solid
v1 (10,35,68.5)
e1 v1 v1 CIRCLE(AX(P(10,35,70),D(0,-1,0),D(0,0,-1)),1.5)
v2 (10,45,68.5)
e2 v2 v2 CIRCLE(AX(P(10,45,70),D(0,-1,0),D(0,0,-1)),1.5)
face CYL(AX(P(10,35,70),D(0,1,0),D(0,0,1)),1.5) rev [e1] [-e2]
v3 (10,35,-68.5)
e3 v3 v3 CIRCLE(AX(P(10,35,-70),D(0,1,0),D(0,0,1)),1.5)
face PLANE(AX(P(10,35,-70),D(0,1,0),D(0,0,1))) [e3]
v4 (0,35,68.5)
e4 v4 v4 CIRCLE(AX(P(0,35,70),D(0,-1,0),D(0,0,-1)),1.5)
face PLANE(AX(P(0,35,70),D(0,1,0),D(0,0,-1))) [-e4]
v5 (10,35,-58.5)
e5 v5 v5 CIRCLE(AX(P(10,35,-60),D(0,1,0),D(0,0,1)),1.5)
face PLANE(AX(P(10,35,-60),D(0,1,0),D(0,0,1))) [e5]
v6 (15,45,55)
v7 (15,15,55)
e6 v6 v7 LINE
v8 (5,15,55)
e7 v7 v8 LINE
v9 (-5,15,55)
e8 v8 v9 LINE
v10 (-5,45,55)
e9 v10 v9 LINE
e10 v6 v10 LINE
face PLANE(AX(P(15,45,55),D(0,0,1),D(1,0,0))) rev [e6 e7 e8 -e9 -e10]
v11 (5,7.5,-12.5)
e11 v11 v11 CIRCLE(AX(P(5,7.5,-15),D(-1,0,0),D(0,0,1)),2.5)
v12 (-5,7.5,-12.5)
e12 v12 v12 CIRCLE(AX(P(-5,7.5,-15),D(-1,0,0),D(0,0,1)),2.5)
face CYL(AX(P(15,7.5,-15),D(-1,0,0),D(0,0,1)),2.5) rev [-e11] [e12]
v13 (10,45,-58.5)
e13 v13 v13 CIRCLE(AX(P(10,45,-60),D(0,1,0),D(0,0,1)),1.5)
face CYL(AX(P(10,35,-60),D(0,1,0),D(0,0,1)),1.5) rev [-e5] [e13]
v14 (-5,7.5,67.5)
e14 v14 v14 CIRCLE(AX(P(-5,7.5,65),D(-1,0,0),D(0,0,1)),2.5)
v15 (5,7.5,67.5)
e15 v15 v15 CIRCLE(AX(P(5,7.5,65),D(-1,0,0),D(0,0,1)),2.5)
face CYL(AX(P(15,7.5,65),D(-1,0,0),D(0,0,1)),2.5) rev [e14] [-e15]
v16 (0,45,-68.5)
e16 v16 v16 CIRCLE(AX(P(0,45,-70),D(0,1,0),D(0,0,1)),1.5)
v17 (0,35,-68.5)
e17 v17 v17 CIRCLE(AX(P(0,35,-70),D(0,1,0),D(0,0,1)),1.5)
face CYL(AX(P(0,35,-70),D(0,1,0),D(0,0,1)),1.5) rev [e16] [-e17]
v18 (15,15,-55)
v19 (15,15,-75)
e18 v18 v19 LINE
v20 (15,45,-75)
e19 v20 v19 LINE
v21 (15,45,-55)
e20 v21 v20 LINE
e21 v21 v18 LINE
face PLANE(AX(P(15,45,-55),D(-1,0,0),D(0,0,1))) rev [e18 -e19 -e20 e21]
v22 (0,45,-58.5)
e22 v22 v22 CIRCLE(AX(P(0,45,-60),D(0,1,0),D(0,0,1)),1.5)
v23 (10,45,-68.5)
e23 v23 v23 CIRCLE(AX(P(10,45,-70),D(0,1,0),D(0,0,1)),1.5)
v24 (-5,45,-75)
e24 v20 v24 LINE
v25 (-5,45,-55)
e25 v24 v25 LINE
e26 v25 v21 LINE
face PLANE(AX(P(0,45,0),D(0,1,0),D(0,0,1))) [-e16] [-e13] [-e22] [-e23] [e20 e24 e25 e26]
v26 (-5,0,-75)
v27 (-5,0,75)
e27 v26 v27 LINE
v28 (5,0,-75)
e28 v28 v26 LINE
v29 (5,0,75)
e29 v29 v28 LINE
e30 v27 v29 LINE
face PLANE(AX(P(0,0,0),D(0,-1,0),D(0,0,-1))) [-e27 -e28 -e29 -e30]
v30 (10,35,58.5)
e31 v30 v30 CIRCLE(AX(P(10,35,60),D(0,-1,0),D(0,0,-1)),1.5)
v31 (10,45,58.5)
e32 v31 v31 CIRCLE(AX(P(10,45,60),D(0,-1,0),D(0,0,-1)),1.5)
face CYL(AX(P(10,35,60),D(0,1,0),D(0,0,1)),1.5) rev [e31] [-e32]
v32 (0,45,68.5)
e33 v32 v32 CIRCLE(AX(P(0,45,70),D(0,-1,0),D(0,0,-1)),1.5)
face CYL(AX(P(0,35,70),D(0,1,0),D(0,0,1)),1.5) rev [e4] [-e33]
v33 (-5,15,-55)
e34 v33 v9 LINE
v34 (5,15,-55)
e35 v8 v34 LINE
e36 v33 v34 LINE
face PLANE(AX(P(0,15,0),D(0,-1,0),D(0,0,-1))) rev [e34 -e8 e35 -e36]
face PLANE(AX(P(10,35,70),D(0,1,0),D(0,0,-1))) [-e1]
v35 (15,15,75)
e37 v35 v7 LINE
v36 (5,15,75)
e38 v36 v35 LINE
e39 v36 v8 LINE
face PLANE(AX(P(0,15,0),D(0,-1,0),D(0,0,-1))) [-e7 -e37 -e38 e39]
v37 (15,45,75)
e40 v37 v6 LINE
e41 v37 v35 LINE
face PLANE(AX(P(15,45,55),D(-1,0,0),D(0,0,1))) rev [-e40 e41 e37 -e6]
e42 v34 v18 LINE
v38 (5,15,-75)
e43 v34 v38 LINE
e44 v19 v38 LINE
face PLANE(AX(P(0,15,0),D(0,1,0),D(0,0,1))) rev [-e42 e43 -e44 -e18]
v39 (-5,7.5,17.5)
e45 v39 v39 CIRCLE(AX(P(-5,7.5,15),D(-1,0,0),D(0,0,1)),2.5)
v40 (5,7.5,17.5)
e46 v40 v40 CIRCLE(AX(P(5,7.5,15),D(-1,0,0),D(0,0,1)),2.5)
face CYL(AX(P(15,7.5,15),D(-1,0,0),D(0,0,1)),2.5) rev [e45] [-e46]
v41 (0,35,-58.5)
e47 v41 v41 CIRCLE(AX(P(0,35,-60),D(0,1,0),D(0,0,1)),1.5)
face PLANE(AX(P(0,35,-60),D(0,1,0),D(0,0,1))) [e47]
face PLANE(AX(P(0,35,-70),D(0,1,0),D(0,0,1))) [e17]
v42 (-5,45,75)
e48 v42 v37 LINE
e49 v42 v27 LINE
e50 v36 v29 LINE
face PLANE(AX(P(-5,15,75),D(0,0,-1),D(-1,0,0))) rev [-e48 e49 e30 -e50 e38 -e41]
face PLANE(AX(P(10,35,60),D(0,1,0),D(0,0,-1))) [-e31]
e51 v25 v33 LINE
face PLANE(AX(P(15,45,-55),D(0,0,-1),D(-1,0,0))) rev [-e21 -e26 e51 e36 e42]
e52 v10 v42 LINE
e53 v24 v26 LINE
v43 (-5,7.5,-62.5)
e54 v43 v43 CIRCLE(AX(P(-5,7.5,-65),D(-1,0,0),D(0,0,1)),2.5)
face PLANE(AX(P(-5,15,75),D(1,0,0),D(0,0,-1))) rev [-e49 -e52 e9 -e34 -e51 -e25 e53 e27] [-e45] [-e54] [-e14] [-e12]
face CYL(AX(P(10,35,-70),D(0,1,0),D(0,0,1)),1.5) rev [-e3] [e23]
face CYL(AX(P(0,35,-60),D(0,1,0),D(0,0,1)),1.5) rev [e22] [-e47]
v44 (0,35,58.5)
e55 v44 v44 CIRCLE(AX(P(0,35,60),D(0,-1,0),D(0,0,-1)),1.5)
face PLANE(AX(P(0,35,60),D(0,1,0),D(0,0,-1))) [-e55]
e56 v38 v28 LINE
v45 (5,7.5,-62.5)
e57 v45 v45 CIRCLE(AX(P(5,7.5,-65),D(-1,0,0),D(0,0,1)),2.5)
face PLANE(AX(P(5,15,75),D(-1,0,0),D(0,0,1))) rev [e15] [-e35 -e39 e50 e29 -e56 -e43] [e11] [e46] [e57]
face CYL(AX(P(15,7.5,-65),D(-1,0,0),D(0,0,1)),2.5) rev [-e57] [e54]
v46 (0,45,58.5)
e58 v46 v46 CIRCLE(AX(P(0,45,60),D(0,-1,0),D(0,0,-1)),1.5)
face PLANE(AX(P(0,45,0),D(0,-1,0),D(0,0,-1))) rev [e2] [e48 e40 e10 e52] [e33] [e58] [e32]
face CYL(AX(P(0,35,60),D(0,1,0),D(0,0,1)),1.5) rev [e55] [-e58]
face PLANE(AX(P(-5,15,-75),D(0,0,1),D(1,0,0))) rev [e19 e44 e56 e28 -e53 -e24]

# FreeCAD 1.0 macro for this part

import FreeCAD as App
import Part
import Sketcher
Q = App.Units.Quantity

doc = App.newDocument("Part")
body = doc.addObject("PartDesign::Body", "Body")

sketch1 = body.newObject("Sketcher::SketchObject", "Sketch")
sketch1.AttachmentSupport = (doc.getObject("XZ_Plane"), [""])
sketch1.MapMode = "FlatFace"
sketch1.addGeometry([
    Part.LineSegment(App.Vector(-5, -75, 0), App.Vector(-5, 75, 0)),
    Part.LineSegment(App.Vector(-5, 75, 0), App.Vector(5, 75, 0)),
    Part.LineSegment(App.Vector(5, 75, 0), App.Vector(5, -75, 0)),
    Part.LineSegment(App.Vector(5, -75, 0), App.Vector(-5, -75, 0)),
], False)
sketch1.addConstraint([
    Sketcher.Constraint("Coincident", 0, 2, 1, 1),
    Sketcher.Constraint("Coincident", 1, 2, 2, 1),
    Sketcher.Constraint("Coincident", 2, 2, 3, 1),
    Sketcher.Constraint("Coincident", 3, 2, 0, 1),
    Sketcher.Constraint("Vertical", 0),
    Sketcher.Constraint("Horizontal", 1),
    Sketcher.Constraint("Vertical", 2),
    Sketcher.Constraint("Horizontal", 3),
    Sketcher.Constraint("Symmetric", 0, 2, 2, 2, -1, 1),
    Sketcher.Constraint("DistanceX", 1, 1, 1, 2, Q("10 mm")),
    Sketcher.Constraint("DistanceY", 0, 1, 0, 2, Q("150 mm")),
])
pad1 = body.newObject("PartDesign::Pad", "Pad")
pad1.Profile = sketch1
pad1.Length = 15
pad1.Reversed = True

sketch2 = body.newObject("Sketcher::SketchObject", "Sketch001")
sketch2.AttachmentSupport = (doc.getObject("XZ_Plane"), [""])
sketch2.MapMode = "FlatFace"
sketch2.AttachmentOffset = App.Placement(App.Vector(0, 0, -15), App.Rotation())
sketch2.addGeometry([
    Part.LineSegment(App.Vector(-5, -75, 0), App.Vector(-5, -55, 0)),
    Part.LineSegment(App.Vector(-5, -55, 0), App.Vector(15, -55, 0)),
    Part.LineSegment(App.Vector(15, -55, 0), App.Vector(15, -75, 0)),
    Part.LineSegment(App.Vector(15, -75, 0), App.Vector(-5, -75, 0)),
    Part.LineSegment(App.Vector(-5, 55, 0), App.Vector(-5, 75, 0)),
    Part.LineSegment(App.Vector(-5, 75, 0), App.Vector(15, 75, 0)),
    Part.LineSegment(App.Vector(15, 75, 0), App.Vector(15, 55, 0)),
    Part.LineSegment(App.Vector(15, 55, 0), App.Vector(-5, 55, 0)),
], False)
sketch2.addConstraint([
    Sketcher.Constraint("Coincident", 0, 2, 1, 1),
    Sketcher.Constraint("Coincident", 1, 2, 2, 1),
    Sketcher.Constraint("Coincident", 2, 2, 3, 1),
    Sketcher.Constraint("Coincident", 3, 2, 0, 1),
    Sketcher.Constraint("Coincident", 4, 2, 5, 1),
    Sketcher.Constraint("Coincident", 5, 2, 6, 1),
    Sketcher.Constraint("Coincident", 6, 2, 7, 1),
    Sketcher.Constraint("Coincident", 7, 2, 4, 1),
    Sketcher.Constraint("Vertical", 0),
    Sketcher.Constraint("Horizontal", 1),
    Sketcher.Constraint("Vertical", 2),
    Sketcher.Constraint("Horizontal", 3),
    Sketcher.Constraint("Vertical", 4),
    Sketcher.Constraint("Horizontal", 5),
    Sketcher.Constraint("Vertical", 6),
    Sketcher.Constraint("Horizontal", 7),
    Sketcher.Constraint("Symmetric", 3, 2, 4, 2, -1),
    Sketcher.Constraint("Symmetric", 1, 2, 6, 2, -1),
    Sketcher.Constraint("Equal", 7, 0),
    Sketcher.Constraint("DistanceX", 1, 1, 1, 2, Q("20 mm")),
    Sketcher.Constraint("DistanceX", 0, 2, -1, 1, Q("5 mm")),
    Sketcher.Constraint("DistanceY", 0, 2, -1, 1, Q("55 mm")),
])
pad2 = body.newObject("PartDesign::Pad", "Pad001")
pad2.Profile = sketch2
pad2.Length = 30
pad2.Reversed = True

sketch3 = body.newObject("Sketcher::SketchObject", "Sketch002")
sketch3.AttachmentSupport = (doc.getObject("YZ_Plane"), [""])
sketch3.MapMode = "FlatFace"
sketch3.AttachmentOffset = App.Placement(App.Vector(0, 0, -5), App.Rotation())
sketch3.addGeometry([
    Part.Circle(App.Vector(7.5, -65, 0), App.Vector(0, 0, 1), 2.5),
    Part.Circle(App.Vector(7.5, -15, 0), App.Vector(0, 0, 1), 2.5),
    Part.Circle(App.Vector(7.5, 15, 0), App.Vector(0, 0, 1), 2.5),
    Part.Circle(App.Vector(7.5, 65, 0), App.Vector(0, 0, 1), 2.5),
], False)
sketch3.addConstraint([
    Sketcher.Constraint("Equal", 0, 1),
    Sketcher.Constraint("Equal", 1, 2),
    Sketcher.Constraint("Equal", 2, 3),
    Sketcher.Constraint("Symmetric", 1, 3, 2, 3, -1),
    Sketcher.Constraint("Symmetric", 0, 3, 3, 3, -1),
    Sketcher.Constraint("Vertical", 0, 3, 1, 3),
    Sketcher.Constraint("Diameter", 0, Q("5 mm")),
    Sketcher.Constraint("DistanceY", 0, 3, -1, 1, Q("65 mm")),
    Sketcher.Constraint("DistanceY", 1, 3, -1, 1, Q("15 mm")),
    Sketcher.Constraint("DistanceX", -1, 1, 0, 3, Q("7.5 mm")),
])
pocket1 = body.newObject("PartDesign::Pocket", "Pocket")
pocket1.Profile = sketch3
pocket1.Type = "ThroughAll"
pocket1.Reversed = True

sketch4 = body.newObject("Sketcher::SketchObject", "Sketch003")
sketch4.AttachmentSupport = (doc.getObject("XZ_Plane"), [""])
sketch4.MapMode = "FlatFace"
sketch4.AttachmentOffset = App.Placement(App.Vector(0, 0, -45), App.Rotation())
sketch4.addGeometry([
    Part.Circle(App.Vector(0, -70, 0), App.Vector(0, 0, 1), 1.5),
    Part.Circle(App.Vector(10, -70, 0), App.Vector(0, 0, 1), 1.5),
    Part.Circle(App.Vector(0, -60, 0), App.Vector(0, 0, 1), 1.5),
    Part.Circle(App.Vector(10, -60, 0), App.Vector(0, 0, 1), 1.5),
], False)
sketch4.addConstraint([
    Sketcher.Constraint("Equal", 0, 1),
    Sketcher.Constraint("Equal", 1, 2),
    Sketcher.Constraint("Equal", 2, 3),
    Sketcher.Constraint("PointOnObject", 0, 3, -2),
    Sketcher.Constraint("PointOnObject", 2, 3, -2),
    Sketcher.Constraint("Horizontal", 0, 3, 1, 3),
    Sketcher.Constraint("Horizontal", 2, 3, 3, 3),
    Sketcher.Constraint("Vertical", 1, 3, 3, 3),
    Sketcher.Constraint("Diameter", 0, Q("3 mm")),
    Sketcher.Constraint("DistanceY", 0, 3, -1, 1, Q("70 mm")),
    Sketcher.Constraint("DistanceX", -1, 1, 1, 3, Q("10 mm")),
    Sketcher.Constraint("DistanceY", 2, 3, -1, 1, Q("60 mm")),
])
pocket2 = body.newObject("PartDesign::Pocket", "Pocket001")
pocket2.Profile = sketch4
pocket2.Length = 10
pocket2.Reversed = True
doc.recompute()

mirrored = body.newObject("PartDesign::Mirrored", "Mirrored")
mirrored.Originals = [pocket2]
mirrored.MirrorPlane = (doc.getObject("XY_Plane"), [""])
body.Tip = mirrored

doc.recompute()
